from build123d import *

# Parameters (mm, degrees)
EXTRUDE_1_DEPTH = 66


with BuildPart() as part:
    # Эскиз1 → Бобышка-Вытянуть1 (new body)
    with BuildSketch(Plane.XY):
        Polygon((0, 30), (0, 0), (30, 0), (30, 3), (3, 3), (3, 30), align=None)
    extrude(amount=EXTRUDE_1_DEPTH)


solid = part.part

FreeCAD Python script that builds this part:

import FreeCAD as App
import Part
import Sketcher
from FreeCAD import Vector
Q = App.Units.Quantity


def add_polygon(sketch, points):
    """Adds a closed chain of lines whose ends are joined by coincident constraints."""
    first, n = sketch.GeometryCount, len(points)
    for a, b in zip(points, points[1:] + points[:1]):
        sketch.addGeometry(Part.LineSegment(App.Vector(*a, 0), App.Vector(*b, 0)), False)
    for i in range(n):
        sketch.addConstraint(Sketcher.Constraint("Coincident", first + i, 2, first + (i + 1) % n, 1))

doc = App.newDocument("Part")
body = doc.addObject("PartDesign::Body", "Body")

# Sketch on XY plane
sketch1 = body.newObject("Sketcher::SketchObject", "Sketch")
sketch1.AttachmentSupport = (doc.getObject("XY_Plane"), [""])
sketch1.MapMode = "FlatFace"
add_polygon(sketch1, [(0, 30), (0, 0), (30, 0), (30, 3), (3, 3), (3, 30)])  # lines 0-5
sketch1.addConstraint([
    Sketcher.Constraint("Vertical", 0),
    Sketcher.Constraint("Horizontal", 1),
    Sketcher.Constraint("Vertical", 2),
    Sketcher.Constraint("Horizontal", 3),
    Sketcher.Constraint("Vertical", 4),
    Sketcher.Constraint("Horizontal", 5),
    Sketcher.Constraint("Coincident", 0, 2, -1, 1),
    Sketcher.Constraint("Equal", 1, 0),
    Sketcher.Constraint("Equal", 5, 2),
    Sketcher.Constraint("DistanceX", 1, 1, 1, 2, Q("30 mm")),
    Sketcher.Constraint("DistanceX", 3, 2, 3, 1, Q("27 mm")),
])
pad1 = body.newObject("PartDesign::Pad", "Pad")
pad1.Profile = sketch1
pad1.Length = 66

doc.recompute()
